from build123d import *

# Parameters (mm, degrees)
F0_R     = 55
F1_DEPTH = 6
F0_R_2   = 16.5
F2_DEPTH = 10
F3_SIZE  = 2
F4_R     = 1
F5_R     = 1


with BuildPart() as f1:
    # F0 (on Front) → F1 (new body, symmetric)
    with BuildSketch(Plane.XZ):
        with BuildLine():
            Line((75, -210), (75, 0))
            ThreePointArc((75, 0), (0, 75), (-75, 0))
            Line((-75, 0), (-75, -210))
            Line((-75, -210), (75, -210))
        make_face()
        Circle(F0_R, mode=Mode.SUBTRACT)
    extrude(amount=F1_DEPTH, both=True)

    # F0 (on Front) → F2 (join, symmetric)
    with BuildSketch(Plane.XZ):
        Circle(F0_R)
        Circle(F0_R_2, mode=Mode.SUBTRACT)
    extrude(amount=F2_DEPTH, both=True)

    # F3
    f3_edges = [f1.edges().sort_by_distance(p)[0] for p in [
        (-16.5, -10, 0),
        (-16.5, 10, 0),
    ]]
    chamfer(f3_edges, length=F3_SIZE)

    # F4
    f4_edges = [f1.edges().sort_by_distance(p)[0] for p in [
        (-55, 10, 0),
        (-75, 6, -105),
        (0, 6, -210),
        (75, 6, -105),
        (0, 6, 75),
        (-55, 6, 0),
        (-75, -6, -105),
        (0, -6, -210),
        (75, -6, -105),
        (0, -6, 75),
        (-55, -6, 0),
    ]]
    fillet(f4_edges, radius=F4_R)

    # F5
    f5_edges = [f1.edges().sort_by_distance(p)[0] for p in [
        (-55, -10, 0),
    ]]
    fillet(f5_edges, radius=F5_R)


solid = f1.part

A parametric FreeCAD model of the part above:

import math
import FreeCAD as App
import Part
import Sketcher

V = App.Vector


def edges_at(feature, points):
    """Names of the edges that pass closest to the given points."""
    edges = feature.Shape.Edges
    near = lambda p: min(range(len(edges)), key=lambda i: edges[i].distToShape(Part.Vertex(*p))[0])
    return sorted({f"Edge{near(p) + 1}" for p in points})

doc = App.newDocument("Part")
body = doc.addObject("PartDesign::Body", "Body")

sketch1 = body.newObject("Sketcher::SketchObject", "Sketch")
sketch1.AttachmentSupport = (doc.getObject("XZ_Plane"), [""])
sketch1.MapMode = "FlatFace"
sketch1.addGeometry([
    Part.LineSegment(V(75, -210, 0), V(75, 0, 0)),
    Part.ArcOfCircle(Part.Circle(V(0, 0, 0), V(0, 0, 1), 75), math.radians(0), math.radians(180)),
    Part.LineSegment(V(-75, 0, 0), V(-75, -210, 0)),
    Part.LineSegment(V(-75, -210, 0), V(75, -210, 0)),
    Part.Circle(V(0, 0, 0), V(0, 0, 1), 55),
], False)
sketch1.addConstraint([
    Sketcher.Constraint("Tangent", 0, 2, 1, 1),
    Sketcher.Constraint("Tangent", 1, 2, 2, 1),
    Sketcher.Constraint("Coincident", 2, 2, 3, 1),
    Sketcher.Constraint("Coincident", 3, 2, 0, 1),
    Sketcher.Constraint("Vertical", 0),
    Sketcher.Constraint("Vertical", 2),
    Sketcher.Constraint("Horizontal", 3),
    Sketcher.Constraint("Coincident", 1, 3, -1, 1),
    Sketcher.Constraint("Coincident", 4, 3, -1, 1),
    Sketcher.Constraint("Diameter", 4, 110.0),
    Sketcher.Constraint("Radius", 1, 75.0),
    Sketcher.Constraint("DistanceY", 0, 1, 0, 2, 210.0),
])
pad1 = body.newObject("PartDesign::Pad", "Pad")
pad1.Profile = sketch1
pad1.Length = 12
pad1.Midplane = True

sketch2 = body.newObject("Sketcher::SketchObject", "Sketch001")
sketch2.AttachmentSupport = (doc.getObject("XZ_Plane"), [""])
sketch2.MapMode = "FlatFace"
sketch2.addGeometry([
    Part.Circle(V(0, 0, 0), V(0, 0, 1), 55),
    Part.Circle(V(0, 0, 0), V(0, 0, 1), 16),
], False)
sketch2.addConstraint([
    Sketcher.Constraint("Coincident", 0, 3, -1, 1),
    Sketcher.Constraint("Coincident", 1, 3, -1, 1),
    Sketcher.Constraint("Diameter", 0, 110.0),
    Sketcher.Constraint("Diameter", 1, 33.0),
])
pad2 = body.newObject("PartDesign::Pad", "Pad001")
pad2.Profile = sketch2
pad2.Length = 20
pad2.Midplane = True
doc.recompute()

chamfer = body.newObject("PartDesign::Chamfer", "Chamfer")
chamfer.Base = (pad2, edges_at(pad2, [(-16.5, -10, 0), (-16.5, 10, 0)]))
chamfer.Size = 2
doc.recompute()

fillet = body.newObject("PartDesign::Fillet", "Fillet")
fillet.Base = (chamfer, edges_at(chamfer, [
    (-55, 10, 0),
    (-75, 6, -105),
    (0, 6, -210),
    (75, 6, -105),
    (0, 6, 75),
    (-55, 6, 0),
    (-75, -6, -105),
    (0, -6, -210),
    (75, -6, -105),
    (0, -6, 75),
    (-55, -6, 0),
]))
fillet.Radius = 1
doc.recompute()

fillet2 = body.newObject("PartDesign::Fillet", "Fillet001")
fillet2.Base = (fillet, edges_at(fillet, [(-55, -10, 0)]))
fillet2.Radius = 1

doc.recompute()
